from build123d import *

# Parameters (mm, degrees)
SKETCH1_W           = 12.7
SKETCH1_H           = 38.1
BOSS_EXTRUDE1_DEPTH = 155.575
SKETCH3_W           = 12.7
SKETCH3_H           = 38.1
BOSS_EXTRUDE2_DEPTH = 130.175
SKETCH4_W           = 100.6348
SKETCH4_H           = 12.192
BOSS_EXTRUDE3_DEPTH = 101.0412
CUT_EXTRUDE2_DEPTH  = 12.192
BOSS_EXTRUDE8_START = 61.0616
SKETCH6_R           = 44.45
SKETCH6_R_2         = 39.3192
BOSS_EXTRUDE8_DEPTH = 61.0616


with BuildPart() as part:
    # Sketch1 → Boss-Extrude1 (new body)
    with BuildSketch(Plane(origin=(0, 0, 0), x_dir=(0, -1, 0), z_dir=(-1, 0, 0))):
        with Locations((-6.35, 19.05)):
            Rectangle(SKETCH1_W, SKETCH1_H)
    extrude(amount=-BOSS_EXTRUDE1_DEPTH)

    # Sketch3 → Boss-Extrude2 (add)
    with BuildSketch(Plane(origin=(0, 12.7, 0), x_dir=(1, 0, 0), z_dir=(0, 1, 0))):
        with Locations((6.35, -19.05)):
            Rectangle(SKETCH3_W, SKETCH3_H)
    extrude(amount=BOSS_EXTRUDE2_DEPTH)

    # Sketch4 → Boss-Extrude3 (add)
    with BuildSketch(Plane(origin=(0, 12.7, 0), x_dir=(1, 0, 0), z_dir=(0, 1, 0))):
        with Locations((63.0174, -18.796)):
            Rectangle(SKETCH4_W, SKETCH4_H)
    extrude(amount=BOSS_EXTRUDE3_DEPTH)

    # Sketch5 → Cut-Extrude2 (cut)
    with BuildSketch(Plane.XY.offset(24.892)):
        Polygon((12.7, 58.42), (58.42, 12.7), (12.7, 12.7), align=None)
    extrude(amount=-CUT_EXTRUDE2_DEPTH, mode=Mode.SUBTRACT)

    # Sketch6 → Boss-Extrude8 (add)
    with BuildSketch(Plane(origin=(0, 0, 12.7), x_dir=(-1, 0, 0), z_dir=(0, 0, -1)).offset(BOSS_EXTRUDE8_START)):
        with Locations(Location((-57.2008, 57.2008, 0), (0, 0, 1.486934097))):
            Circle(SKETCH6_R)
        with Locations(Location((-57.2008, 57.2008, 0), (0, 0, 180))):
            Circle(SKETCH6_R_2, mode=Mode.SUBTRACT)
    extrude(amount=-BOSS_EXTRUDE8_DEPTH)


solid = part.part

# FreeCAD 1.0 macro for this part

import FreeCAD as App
import Part
import Sketcher

V = App.Vector
Q = App.Units.Quantity


def add_polygon(sketch, points):
    """Adds a closed chain of lines whose ends are joined by coincident constraints."""
    first, n = sketch.GeometryCount, len(points)
    for a, b in zip(points, points[1:] + points[:1]):
        sketch.addGeometry(Part.LineSegment(App.Vector(*a, 0), App.Vector(*b, 0)), False)
    for i in range(n):
        sketch.addConstraint(Sketcher.Constraint("Coincident", first + i, 2, first + (i + 1) % n, 1))

doc = App.newDocument("Part")
body = doc.addObject("PartDesign::Body", "Body")

# Sketch on YZ plane
sketch1 = body.newObject("Sketcher::SketchObject", "Sketch")
sketch1.AttachmentSupport = (doc.getObject("YZ_Plane"), [""])
sketch1.MapMode = "FlatFace"
add_polygon(sketch1, [(13, 38), (13, 0), (0, 0), (0, 38)])  # lines 0-3
sketch1.addConstraint([
    Sketcher.Constraint("Vertical", 0),
    Sketcher.Constraint("Horizontal", 1),
    Sketcher.Constraint("Vertical", 2),
    Sketcher.Constraint("Horizontal", 3),
    Sketcher.Constraint("Coincident", 1, 2, -1, 1),
    Sketcher.Constraint("DistanceX", 1, 2, 1, 1, Q("0.5 in")),
    Sketcher.Constraint("DistanceY", 0, 2, 0, 1, Q("1.5 in")),
])
pad1 = body.newObject("PartDesign::Pad", "Pad")
pad1.Profile = sketch1
pad1.Length = Q("6.125 in")

# Sketch on XZ plane
sketch2 = body.newObject("Sketcher::SketchObject", "Sketch001")
sketch2.AttachmentSupport = (doc.getObject("XZ_Plane"), [""])
sketch2.MapMode = "FlatFace"
sketch2.AttachmentOffset = App.Placement(V(0, 0, -0.5 * 25.4), App.Rotation())
add_polygon(sketch2, [(0, 0), (0, 38), (13, 38), (13, 0)])  # lines 0-3
sketch2.addConstraint([
    Sketcher.Constraint("Vertical", 0),
    Sketcher.Constraint("Horizontal", 1),
    Sketcher.Constraint("Vertical", 2),
    Sketcher.Constraint("Horizontal", 3),
    Sketcher.Constraint("Coincident", 3, 2, -1, 1),
    Sketcher.Constraint("DistanceX", 1, 1, 1, 2, Q("0.5 in")),
    Sketcher.Constraint("DistanceY", 0, 1, 0, 2, Q("1.5 in")),
])
pad2 = body.newObject("PartDesign::Pad", "Pad001")
pad2.Profile = sketch2
pad2.Length = Q("5.125 in")
pad2.Reversed = True

# Sketch on XZ plane
sketch3 = body.newObject("Sketcher::SketchObject", "Sketch002")
sketch3.AttachmentSupport = (doc.getObject("XZ_Plane"), [""])
sketch3.MapMode = "FlatFace"
sketch3.AttachmentOffset = App.Placement(V(0, 0, -0.5 * 25.4), App.Rotation())
add_polygon(sketch3, [(13, 13), (13, 25), (113, 25), (113, 13)])  # lines 0-3
sketch3.addConstraint([
    Sketcher.Constraint("Vertical", 0),
    Sketcher.Constraint("Horizontal", 1),
    Sketcher.Constraint("Vertical", 2),
    Sketcher.Constraint("Horizontal", 3),
    Sketcher.Constraint("DistanceY", 0, 1, 0, 2, Q("0.48 in")),
    Sketcher.Constraint("DistanceX", -1, 1, 0, 2, Q("0.5 in")),
    Sketcher.Constraint("DistanceY", -1, 1, 2, 2, Q("0.5 in")),
    Sketcher.Constraint("DistanceX", 1, 1, 1, 2, Q("3.962 in")),
])
pad3 = body.newObject("PartDesign::Pad", "Pad002")
pad3.Profile = sketch3
pad3.Length = Q("3.978 in")
pad3.Reversed = True

# Sketch on XY plane
sketch4 = body.newObject("Sketcher::SketchObject", "Sketch003")
sketch4.AttachmentSupport = (doc.getObject("XY_Plane"), [""])
sketch4.MapMode = "FlatFace"
sketch4.AttachmentOffset = App.Placement(V(0, 0, 0.98 * 25.4), App.Rotation())
add_polygon(sketch4, [(58, 13), (13, 58), (13, 13)])  # lines 0-2
sketch4.addConstraint([
    Sketcher.Constraint("Vertical", 1),
    Sketcher.Constraint("Horizontal", 2),
    Sketcher.Constraint("Equal", 2, 1),
    Sketcher.Constraint("DistanceX", 2, 1, 2, 2, Q("1.8 in")),
    Sketcher.Constraint("DistanceX", -1, 1, 0, 2, Q("0.5 in")),
    Sketcher.Constraint("DistanceY", -1, 1, 0, 2, Q("2.3 in")),
])
pocket1 = body.newObject("PartDesign::Pocket", "Pocket")
pocket1.Profile = sketch4
pocket1.Length = Q("0.48 in")

# Sketch on XY plane
sketch5 = body.newObject("Sketcher::SketchObject", "Sketch004")
sketch5.AttachmentSupport = (doc.getObject("XY_Plane"), [""])
sketch5.MapMode = "FlatFace"
sketch5.AttachmentOffset = App.Placement(V(0, 0, -1.904 * 25.4), App.Rotation())
sketch5.addGeometry([
    Part.Circle(V(57, 57, 0), V(0, 0, 1), 44),
    Part.Circle(V(57, 57, 0), V(0, 0, 1), 39),
], False)
sketch5.addConstraint([
    Sketcher.Constraint("Coincident", 1, 3, 0, 3),
    Sketcher.Constraint("Diameter", 0, Q("3.5 in")),
    Sketcher.Constraint("Diameter", 1, Q("3.096 in")),
    Sketcher.Constraint("DistanceX", -1, 1, 0, 3, Q("2.252 in")),
    Sketcher.Constraint("DistanceY", -1, 1, 0, 3, Q("2.252 in")),
])
pad4 = body.newObject("PartDesign::Pad", "Pad003")
pad4.Profile = sketch5
pad4.Length = Q("2.404 in")

doc.recompute()
